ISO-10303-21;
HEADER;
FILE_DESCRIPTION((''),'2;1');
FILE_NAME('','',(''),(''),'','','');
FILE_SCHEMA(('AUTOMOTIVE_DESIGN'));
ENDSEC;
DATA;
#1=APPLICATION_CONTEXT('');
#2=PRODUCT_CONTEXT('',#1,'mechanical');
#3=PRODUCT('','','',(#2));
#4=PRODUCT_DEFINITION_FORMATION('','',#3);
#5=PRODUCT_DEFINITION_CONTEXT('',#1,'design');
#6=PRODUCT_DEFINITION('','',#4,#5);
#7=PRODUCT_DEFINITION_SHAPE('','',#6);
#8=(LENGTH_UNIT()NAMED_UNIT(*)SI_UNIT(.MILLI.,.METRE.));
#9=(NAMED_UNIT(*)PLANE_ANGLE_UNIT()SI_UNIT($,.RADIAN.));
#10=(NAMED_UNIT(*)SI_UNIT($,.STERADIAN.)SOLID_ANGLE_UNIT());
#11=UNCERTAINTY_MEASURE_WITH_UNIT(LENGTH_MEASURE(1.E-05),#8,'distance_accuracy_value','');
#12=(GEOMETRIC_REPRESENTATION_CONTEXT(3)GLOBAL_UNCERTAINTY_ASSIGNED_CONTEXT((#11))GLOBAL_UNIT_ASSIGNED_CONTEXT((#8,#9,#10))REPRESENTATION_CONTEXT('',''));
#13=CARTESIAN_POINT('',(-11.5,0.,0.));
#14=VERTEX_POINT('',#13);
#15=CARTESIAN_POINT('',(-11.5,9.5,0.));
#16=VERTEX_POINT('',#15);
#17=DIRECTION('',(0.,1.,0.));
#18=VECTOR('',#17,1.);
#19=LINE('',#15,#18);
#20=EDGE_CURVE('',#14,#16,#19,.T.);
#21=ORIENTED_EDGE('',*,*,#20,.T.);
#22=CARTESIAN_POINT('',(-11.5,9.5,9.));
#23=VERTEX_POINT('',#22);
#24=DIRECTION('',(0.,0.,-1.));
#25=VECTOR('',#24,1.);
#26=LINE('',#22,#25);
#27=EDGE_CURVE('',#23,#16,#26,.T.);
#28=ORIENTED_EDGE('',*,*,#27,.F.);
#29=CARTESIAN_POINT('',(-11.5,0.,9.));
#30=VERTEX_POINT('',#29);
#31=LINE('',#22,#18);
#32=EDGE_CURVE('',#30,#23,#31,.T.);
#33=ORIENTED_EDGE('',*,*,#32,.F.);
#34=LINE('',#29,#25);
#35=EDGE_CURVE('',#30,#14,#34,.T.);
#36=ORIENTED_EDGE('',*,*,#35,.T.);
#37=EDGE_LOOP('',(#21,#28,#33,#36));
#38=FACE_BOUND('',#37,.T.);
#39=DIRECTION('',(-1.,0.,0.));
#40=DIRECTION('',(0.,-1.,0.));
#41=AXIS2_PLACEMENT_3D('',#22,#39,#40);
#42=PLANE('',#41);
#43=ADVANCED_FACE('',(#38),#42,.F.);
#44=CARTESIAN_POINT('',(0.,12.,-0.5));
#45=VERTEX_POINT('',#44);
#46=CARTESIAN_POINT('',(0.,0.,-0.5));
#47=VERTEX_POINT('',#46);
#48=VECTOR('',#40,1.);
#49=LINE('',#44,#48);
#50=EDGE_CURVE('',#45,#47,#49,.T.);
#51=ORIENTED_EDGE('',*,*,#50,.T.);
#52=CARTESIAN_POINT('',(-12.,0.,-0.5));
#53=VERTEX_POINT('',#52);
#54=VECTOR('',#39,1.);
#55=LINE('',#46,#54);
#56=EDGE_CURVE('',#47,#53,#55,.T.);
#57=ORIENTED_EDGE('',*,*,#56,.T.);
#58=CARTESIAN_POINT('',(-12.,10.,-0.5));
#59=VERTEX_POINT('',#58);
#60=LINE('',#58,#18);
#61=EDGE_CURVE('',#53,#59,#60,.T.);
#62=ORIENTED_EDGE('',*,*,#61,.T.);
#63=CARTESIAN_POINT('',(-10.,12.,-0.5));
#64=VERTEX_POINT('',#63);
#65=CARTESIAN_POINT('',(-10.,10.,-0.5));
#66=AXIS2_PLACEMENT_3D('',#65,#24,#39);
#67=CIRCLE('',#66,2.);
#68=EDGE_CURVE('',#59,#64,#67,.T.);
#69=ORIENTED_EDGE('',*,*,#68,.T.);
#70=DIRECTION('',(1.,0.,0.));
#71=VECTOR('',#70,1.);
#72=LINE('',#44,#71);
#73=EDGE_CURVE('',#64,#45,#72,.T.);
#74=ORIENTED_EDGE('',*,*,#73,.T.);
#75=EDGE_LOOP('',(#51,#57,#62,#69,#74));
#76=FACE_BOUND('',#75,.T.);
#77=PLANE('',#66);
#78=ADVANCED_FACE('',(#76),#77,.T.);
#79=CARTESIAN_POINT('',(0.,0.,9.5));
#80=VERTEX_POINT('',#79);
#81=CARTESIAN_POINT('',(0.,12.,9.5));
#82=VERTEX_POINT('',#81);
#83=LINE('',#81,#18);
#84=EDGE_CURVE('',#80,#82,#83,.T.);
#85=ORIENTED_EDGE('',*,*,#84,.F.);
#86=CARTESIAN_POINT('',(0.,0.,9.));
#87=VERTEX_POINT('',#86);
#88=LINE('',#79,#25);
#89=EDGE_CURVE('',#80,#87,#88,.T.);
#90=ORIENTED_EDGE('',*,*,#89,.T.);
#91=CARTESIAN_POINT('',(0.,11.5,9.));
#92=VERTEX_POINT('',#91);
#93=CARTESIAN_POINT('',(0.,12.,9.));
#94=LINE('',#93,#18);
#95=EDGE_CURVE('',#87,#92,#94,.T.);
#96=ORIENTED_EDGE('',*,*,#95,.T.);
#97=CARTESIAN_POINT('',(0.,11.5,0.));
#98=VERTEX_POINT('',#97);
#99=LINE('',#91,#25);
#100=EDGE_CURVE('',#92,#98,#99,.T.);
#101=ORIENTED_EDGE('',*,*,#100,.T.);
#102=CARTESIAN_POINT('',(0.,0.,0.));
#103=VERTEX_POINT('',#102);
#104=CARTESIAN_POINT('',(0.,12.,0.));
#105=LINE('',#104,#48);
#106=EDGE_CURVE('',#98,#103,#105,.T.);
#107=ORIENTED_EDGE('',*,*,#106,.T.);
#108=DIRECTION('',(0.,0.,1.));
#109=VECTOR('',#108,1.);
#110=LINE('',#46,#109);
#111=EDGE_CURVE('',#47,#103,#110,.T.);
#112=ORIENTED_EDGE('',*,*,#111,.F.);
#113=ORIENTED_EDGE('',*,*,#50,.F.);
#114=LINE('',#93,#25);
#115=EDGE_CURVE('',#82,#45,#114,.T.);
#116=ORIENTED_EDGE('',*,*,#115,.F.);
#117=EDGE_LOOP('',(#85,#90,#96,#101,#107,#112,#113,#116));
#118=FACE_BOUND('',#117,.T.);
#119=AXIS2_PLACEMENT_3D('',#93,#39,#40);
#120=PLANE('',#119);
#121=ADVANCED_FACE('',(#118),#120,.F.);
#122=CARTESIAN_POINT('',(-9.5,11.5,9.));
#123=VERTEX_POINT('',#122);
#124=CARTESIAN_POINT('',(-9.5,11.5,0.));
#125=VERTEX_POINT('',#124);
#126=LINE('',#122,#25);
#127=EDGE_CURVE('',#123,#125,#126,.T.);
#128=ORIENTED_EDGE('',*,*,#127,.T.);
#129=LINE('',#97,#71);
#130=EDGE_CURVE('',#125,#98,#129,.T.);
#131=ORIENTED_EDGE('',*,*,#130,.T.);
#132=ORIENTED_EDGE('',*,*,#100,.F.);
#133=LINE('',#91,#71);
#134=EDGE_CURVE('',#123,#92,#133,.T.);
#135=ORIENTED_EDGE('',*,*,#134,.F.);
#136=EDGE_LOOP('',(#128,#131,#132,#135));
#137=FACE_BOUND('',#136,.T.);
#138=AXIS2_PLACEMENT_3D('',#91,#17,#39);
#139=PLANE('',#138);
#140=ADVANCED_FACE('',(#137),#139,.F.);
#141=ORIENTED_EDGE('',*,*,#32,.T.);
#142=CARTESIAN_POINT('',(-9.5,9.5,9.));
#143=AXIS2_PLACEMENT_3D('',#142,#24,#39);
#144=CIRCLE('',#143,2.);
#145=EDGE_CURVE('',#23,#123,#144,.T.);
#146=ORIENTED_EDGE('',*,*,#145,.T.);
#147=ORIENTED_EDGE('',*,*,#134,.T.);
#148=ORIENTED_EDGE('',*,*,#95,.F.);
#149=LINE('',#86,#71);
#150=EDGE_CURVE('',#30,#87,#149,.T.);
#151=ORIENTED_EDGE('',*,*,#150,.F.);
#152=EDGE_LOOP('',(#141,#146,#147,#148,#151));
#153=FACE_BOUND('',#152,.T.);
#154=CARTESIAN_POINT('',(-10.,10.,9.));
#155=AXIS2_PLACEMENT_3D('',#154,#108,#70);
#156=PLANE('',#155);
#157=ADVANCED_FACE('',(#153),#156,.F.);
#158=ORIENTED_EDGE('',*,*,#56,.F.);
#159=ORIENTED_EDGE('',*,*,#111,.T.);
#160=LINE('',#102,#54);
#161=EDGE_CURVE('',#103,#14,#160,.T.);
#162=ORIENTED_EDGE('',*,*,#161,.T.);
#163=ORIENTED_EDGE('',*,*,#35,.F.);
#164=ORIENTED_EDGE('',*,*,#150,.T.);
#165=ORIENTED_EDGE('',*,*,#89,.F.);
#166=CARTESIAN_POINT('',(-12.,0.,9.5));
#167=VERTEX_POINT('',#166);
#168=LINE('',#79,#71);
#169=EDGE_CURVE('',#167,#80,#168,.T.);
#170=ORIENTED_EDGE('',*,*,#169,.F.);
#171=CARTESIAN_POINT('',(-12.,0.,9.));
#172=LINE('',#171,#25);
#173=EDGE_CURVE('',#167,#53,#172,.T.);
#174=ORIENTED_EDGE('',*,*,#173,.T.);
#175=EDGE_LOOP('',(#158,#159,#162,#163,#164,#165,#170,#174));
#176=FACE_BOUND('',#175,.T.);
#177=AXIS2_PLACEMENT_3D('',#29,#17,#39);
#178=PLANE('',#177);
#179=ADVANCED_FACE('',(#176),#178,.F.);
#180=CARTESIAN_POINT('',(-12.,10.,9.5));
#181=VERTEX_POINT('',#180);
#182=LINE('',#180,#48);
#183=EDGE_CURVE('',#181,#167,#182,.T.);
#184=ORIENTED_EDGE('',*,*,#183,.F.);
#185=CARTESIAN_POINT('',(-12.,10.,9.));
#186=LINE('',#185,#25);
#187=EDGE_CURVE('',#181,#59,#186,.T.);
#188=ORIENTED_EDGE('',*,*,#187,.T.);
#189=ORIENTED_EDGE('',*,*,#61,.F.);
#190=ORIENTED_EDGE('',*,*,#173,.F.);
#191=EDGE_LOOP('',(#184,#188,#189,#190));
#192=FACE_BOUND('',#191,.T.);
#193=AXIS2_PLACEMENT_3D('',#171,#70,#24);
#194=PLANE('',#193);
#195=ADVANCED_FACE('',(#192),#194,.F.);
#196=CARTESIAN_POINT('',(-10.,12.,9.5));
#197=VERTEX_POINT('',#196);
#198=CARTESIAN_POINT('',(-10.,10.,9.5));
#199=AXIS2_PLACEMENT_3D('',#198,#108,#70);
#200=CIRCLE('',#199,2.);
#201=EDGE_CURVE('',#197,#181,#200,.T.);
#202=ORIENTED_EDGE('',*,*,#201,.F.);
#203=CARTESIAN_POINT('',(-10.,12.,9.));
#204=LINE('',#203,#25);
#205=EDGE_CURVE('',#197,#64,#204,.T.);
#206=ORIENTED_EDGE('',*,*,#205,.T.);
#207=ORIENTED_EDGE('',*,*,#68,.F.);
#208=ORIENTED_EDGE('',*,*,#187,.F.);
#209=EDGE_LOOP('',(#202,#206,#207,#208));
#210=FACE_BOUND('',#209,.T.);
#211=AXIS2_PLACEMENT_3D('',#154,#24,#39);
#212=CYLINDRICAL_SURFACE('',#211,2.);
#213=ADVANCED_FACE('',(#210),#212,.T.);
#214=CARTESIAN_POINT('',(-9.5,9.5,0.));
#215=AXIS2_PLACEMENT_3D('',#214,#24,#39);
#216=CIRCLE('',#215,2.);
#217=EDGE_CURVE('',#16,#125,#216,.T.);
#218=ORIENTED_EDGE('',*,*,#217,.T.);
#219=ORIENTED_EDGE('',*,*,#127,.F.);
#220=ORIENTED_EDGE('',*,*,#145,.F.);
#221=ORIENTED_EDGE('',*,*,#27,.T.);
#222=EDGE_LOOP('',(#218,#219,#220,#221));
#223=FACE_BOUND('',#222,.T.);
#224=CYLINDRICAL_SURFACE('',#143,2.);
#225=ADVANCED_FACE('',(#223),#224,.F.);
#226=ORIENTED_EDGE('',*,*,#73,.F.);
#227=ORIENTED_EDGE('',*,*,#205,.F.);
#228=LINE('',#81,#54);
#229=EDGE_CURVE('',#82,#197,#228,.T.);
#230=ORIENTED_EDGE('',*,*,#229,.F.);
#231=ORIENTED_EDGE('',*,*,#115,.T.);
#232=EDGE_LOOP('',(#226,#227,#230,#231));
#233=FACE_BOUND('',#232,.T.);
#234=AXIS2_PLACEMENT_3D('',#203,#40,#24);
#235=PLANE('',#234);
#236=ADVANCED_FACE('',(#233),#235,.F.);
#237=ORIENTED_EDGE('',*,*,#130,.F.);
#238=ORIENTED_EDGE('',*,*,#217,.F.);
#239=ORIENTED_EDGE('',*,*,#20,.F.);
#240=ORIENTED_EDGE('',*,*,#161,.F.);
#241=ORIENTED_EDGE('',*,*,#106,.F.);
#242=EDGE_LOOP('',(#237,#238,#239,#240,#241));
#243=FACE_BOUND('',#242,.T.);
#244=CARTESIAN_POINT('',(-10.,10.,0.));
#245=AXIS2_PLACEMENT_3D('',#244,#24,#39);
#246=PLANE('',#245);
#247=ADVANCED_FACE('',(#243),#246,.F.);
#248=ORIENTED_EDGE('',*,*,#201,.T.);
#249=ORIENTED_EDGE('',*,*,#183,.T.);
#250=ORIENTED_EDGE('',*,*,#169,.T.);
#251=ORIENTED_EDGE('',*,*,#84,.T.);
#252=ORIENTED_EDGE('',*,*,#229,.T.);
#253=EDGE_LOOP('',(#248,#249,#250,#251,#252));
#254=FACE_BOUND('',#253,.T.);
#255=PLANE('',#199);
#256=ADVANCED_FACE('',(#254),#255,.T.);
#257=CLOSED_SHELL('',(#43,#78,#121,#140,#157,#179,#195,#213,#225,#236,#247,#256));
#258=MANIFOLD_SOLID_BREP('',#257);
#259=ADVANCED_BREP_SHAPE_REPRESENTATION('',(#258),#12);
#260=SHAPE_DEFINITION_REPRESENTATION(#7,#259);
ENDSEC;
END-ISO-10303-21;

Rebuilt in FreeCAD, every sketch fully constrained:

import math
import FreeCAD as App
import Part
import Sketcher

V = App.Vector
Q = App.Units.Quantity

doc = App.newDocument("Part")
body = doc.addObject("PartDesign::Body", "Body")

sketch1 = doc.addObject("Sketcher::SketchObject", "Sketch")
body.addObject(sketch1)
sketch1.AttachmentSupport = (doc.XY_Plane, [""])
sketch1.MapMode = "FlatFace"
sketch1.addGeometry(Part.LineSegment(V(-12, 10, 0), V(-12, 0, 0)), False)
sketch1.addGeometry(Part.LineSegment(V(-12, 0, 0), V(-11.5, 0, 0)), False)
sketch1.addGeometry(Part.LineSegment(V(-11.5, 0, 0), V(-11.5, 9.5, 0)), False)
sketch1.addGeometry(Part.ArcOfCircle(Part.Circle(V(-9.5, 9.5, 0), V(0, 0, 1), 2), math.radians(90), math.radians(180)), False)
sketch1.addGeometry(Part.LineSegment(V(-9.5, 11.5, 0), V(0, 11.5, 0)), False)
sketch1.addGeometry(Part.LineSegment(V(0, 11.5, 0), V(0, 12, 0)), False)
sketch1.addGeometry(Part.LineSegment(V(0, 12, 0), V(-10, 12, 0)), False)
sketch1.addGeometry(Part.ArcOfCircle(Part.Circle(V(-10, 10, 0), V(0, 0, 1), 2), math.radians(90), math.radians(180)), False)
sketch1.addConstraint(Sketcher.Constraint("Coincident", 0, 2, 1, 1))
sketch1.addConstraint(Sketcher.Constraint("Coincident", 1, 2, 2, 1))
sketch1.addConstraint(Sketcher.Constraint("Tangent", 2, 2, 3, 2))
sketch1.addConstraint(Sketcher.Constraint("Tangent", 3, 1, 4, 1))
sketch1.addConstraint(Sketcher.Constraint("Coincident", 4, 2, 5, 1))
sketch1.addConstraint(Sketcher.Constraint("Coincident", 5, 2, 6, 1))
sketch1.addConstraint(Sketcher.Constraint("Tangent", 6, 2, 7, 1))
sketch1.addConstraint(Sketcher.Constraint("Tangent", 7, 2, 0, 1))
sketch1.addConstraint(Sketcher.Constraint("Vertical", 0))
sketch1.addConstraint(Sketcher.Constraint("Horizontal", 1))
sketch1.addConstraint(Sketcher.Constraint("Vertical", 2))
sketch1.addConstraint(Sketcher.Constraint("Horizontal", 4))
sketch1.addConstraint(Sketcher.Constraint("Vertical", 5))
sketch1.addConstraint(Sketcher.Constraint("Horizontal", 6))
sketch1.addConstraint(Sketcher.Constraint("Equal", 3, 7))
sketch1.addConstraint(Sketcher.Constraint("PointOnObject", 0, 2, -1))
sketch1.addConstraint(Sketcher.Constraint("PointOnObject", 4, 2, -2))
sketch1.addConstraint(Sketcher.Constraint("Equal", 6, 0))
sketch1.addConstraint(Sketcher.Constraint("Equal", 4, 2))
sketch1.addConstraint(Sketcher.Constraint("Radius", 3, Q("2 mm")))
sketch1.addConstraint(Sketcher.Constraint("DistanceX", 6, 2, 6, 1, Q("10 mm")))
sketch1.addConstraint(Sketcher.Constraint("DistanceX", 1, 1, 1, 2, Q("0.5 mm")))
pad1 = doc.addObject("PartDesign::Pad", "Pad")
body.addObject(pad1)
pad1.Profile = sketch1
pad1.Length = 9

sketch2 = doc.addObject("Sketcher::SketchObject", "Sketch001")
body.addObject(sketch2)
sketch2.AttachmentSupport = (doc.XY_Plane, [""])
sketch2.MapMode = "FlatFace"
sketch2.AttachmentOffset = App.Placement(V(0, 0, 9), App.Rotation())
sketch2.addGeometry(Part.LineSegment(V(0, 0, 0), V(0, 12, 0)), False)
sketch2.addGeometry(Part.LineSegment(V(0, 12, 0), V(-10, 12, 0)), False)
sketch2.addGeometry(Part.ArcOfCircle(Part.Circle(V(-10, 10, 0), V(0, 0, 1), 2), math.radians(90), math.radians(180)), False)
sketch2.addGeometry(Part.LineSegment(V(-12, 10, 0), V(-12, 0, 0)), False)
sketch2.addGeometry(Part.LineSegment(V(-12, 0, 0), V(0, 0, 0)), False)
sketch2.addConstraint(Sketcher.Constraint("Coincident", 0, 2, 1, 1))
sketch2.addConstraint(Sketcher.Constraint("Tangent", 1, 2, 2, 1))
sketch2.addConstraint(Sketcher.Constraint("Tangent", 2, 2, 3, 1))
sketch2.addConstraint(Sketcher.Constraint("Coincident", 3, 2, 4, 1))
sketch2.addConstraint(Sketcher.Constraint("Coincident", 4, 2, 0, 1))
sketch2.addConstraint(Sketcher.Constraint("Vertical", 0))
sketch2.addConstraint(Sketcher.Constraint("Horizontal", 1))
sketch2.addConstraint(Sketcher.Constraint("Vertical", 3))
sketch2.addConstraint(Sketcher.Constraint("Horizontal", 4))
sketch2.addConstraint(Sketcher.Constraint("Coincident", 4, 2, -1, 1))
sketch2.addConstraint(Sketcher.Constraint("Equal", 4, 0))
sketch2.addConstraint(Sketcher.Constraint("Radius", 2, Q("2 mm")))
sketch2.addConstraint(Sketcher.Constraint("DistanceX", 1, 2, 1, 1, Q("10 mm")))
pad2 = doc.addObject("PartDesign::Pad", "Pad001")
body.addObject(pad2)
pad2.Profile = sketch2
pad2.Length = 0.5

sketch3 = doc.addObject("Sketcher::SketchObject", "Sketch002")
body.addObject(sketch3)
sketch3.AttachmentSupport = (doc.XY_Plane, [""])
sketch3.MapMode = "FlatFace"
sketch3.addGeometry(Part.LineSegment(V(-10, 12, 0), V(0, 12, 0)), False)
sketch3.addGeometry(Part.LineSegment(V(0, 12, 0), V(0, 0, 0)), False)
sketch3.addGeometry(Part.LineSegment(V(0, 0, 0), V(-12, 0, 0)), False)
sketch3.addGeometry(Part.LineSegment(V(-12, 0, 0), V(-12, 10, 0)), False)
sketch3.addGeometry(Part.ArcOfCircle(Part.Circle(V(-10, 10, 0), V(0, 0, 1), 2), math.radians(90), math.radians(180)), False)
sketch3.addConstraint(Sketcher.Constraint("Coincident", 0, 2, 1, 1))
sketch3.addConstraint(Sketcher.Constraint("Coincident", 1, 2, 2, 1))
sketch3.addConstraint(Sketcher.Constraint("Coincident", 2, 2, 3, 1))
sketch3.addConstraint(Sketcher.Constraint("Tangent", 3, 2, 4, 2))
sketch3.addConstraint(Sketcher.Constraint("Tangent", 4, 1, 0, 1))
sketch3.addConstraint(Sketcher.Constraint("Horizontal", 0))
sketch3.addConstraint(Sketcher.Constraint("Vertical", 1))
sketch3.addConstraint(Sketcher.Constraint("Horizontal", 2))
sketch3.addConstraint(Sketcher.Constraint("Vertical", 3))
sketch3.addConstraint(Sketcher.Constraint("Coincident", 1, 2, -1, 1))
sketch3.addConstraint(Sketcher.Constraint("Equal", 2, 1))
sketch3.addConstraint(Sketcher.Constraint("Radius", 4, Q("2 mm")))
sketch3.addConstraint(Sketcher.Constraint("DistanceX", 0, 1, 0, 2, Q("10 mm")))
pad3 = doc.addObject("PartDesign::Pad", "Pad002")
body.addObject(pad3)
pad3.Profile = sketch3
pad3.Length = 0.5
pad3.Reversed = True

doc.recompute()
